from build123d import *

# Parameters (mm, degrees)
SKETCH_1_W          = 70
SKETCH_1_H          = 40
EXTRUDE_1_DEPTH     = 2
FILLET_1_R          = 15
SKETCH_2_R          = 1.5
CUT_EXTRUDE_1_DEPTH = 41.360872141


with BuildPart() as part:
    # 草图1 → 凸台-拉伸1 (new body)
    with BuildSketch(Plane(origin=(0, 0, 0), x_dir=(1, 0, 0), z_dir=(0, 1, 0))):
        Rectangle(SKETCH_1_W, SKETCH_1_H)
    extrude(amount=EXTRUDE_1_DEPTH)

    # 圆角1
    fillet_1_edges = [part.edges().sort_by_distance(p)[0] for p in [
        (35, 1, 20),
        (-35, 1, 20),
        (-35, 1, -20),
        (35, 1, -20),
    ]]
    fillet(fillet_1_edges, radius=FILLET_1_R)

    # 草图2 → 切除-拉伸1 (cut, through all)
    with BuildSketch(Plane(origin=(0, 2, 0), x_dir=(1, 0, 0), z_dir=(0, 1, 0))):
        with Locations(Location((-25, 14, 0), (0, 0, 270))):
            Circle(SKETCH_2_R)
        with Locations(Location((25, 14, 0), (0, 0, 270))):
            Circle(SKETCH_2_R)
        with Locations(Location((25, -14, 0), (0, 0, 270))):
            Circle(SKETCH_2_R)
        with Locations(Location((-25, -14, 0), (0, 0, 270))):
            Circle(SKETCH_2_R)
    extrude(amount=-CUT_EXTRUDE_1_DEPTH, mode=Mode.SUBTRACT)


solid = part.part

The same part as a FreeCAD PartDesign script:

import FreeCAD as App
import Part
import Sketcher


def edges_at(feature, points):
    """Names of the edges that pass closest to the given points."""
    edges = feature.Shape.Edges
    near = lambda p: min(range(len(edges)), key=lambda i: edges[i].distToShape(Part.Vertex(*p))[0])
    return sorted({f"Edge{near(p) + 1}" for p in points})

doc = App.newDocument("Part")
body = doc.addObject("PartDesign::Body", "Body")

sketch1 = body.newObject("Sketcher::SketchObject", "Sketch")
sketch1.AttachmentSupport = (doc.getObject("XZ_Plane"), [""])
sketch1.MapMode = "FlatFace"
sketch1.addGeometry(Part.LineSegment(App.Vector(-35, -20, 0), App.Vector(-35, 20, 0)), False)
sketch1.addGeometry(Part.LineSegment(App.Vector(-35, 20, 0), App.Vector(35, 20, 0)), False)
sketch1.addGeometry(Part.LineSegment(App.Vector(35, 20, 0), App.Vector(35, -20, 0)), False)
sketch1.addGeometry(Part.LineSegment(App.Vector(35, -20, 0), App.Vector(-35, -20, 0)), False)
sketch1.addConstraint(Sketcher.Constraint("Coincident", 0, 2, 1, 1))
sketch1.addConstraint(Sketcher.Constraint("Coincident", 1, 2, 2, 1))
sketch1.addConstraint(Sketcher.Constraint("Coincident", 2, 2, 3, 1))
sketch1.addConstraint(Sketcher.Constraint("Coincident", 3, 2, 0, 1))
sketch1.addConstraint(Sketcher.Constraint("Vertical", 0))
sketch1.addConstraint(Sketcher.Constraint("Horizontal", 1))
sketch1.addConstraint(Sketcher.Constraint("Vertical", 2))
sketch1.addConstraint(Sketcher.Constraint("Horizontal", 3))
sketch1.addConstraint(Sketcher.Constraint("Symmetric", 0, 2, 2, 2, -1, 1))
sketch1.addConstraint(Sketcher.Constraint("DistanceX", 1, 1, 1, 2, 70.0))
sketch1.addConstraint(Sketcher.Constraint("DistanceY", 0, 1, 0, 2, 40.0))
pad1 = body.newObject("PartDesign::Pad", "Pad")
pad1.Profile = sketch1
pad1.Length = 2
pad1.Reversed = True
doc.recompute()

fillet = body.newObject("PartDesign::Fillet", "Fillet")
fillet.Base = (pad1, edges_at(pad1, [
    (35, 1, 20),
    (-35, 1, 20),
    (-35, 1, -20),
    (35, 1, -20),
]))
fillet.Radius = 15

sketch2 = body.newObject("Sketcher::SketchObject", "Sketch001")
sketch2.AttachmentSupport = (doc.getObject("XZ_Plane"), [""])
sketch2.MapMode = "FlatFace"
sketch2.AttachmentOffset = App.Placement(App.Vector(0, 0, -2), App.Rotation())
sketch2.addGeometry(Part.Circle(App.Vector(-25, -14, 0), App.Vector(0, 0, 1), 1.5), False)
sketch2.addGeometry(Part.Circle(App.Vector(25, -14, 0), App.Vector(0, 0, 1), 1.5), False)
sketch2.addGeometry(Part.Circle(App.Vector(25, 14, 0), App.Vector(0, 0, 1), 1.5), False)
sketch2.addGeometry(Part.Circle(App.Vector(-25, 14, 0), App.Vector(0, 0, 1), 1.5), False)
sketch2.addConstraint(Sketcher.Constraint("Equal", 0, 1))
sketch2.addConstraint(Sketcher.Constraint("Equal", 1, 2))
sketch2.addConstraint(Sketcher.Constraint("Equal", 2, 3))
sketch2.addConstraint(Sketcher.Constraint("Symmetric", 0, 3, 2, 3, -1, 1))
sketch2.addConstraint(Sketcher.Constraint("Symmetric", 1, 3, 3, 3, -1, 1))
sketch2.addConstraint(Sketcher.Constraint("Symmetric", 0, 3, 1, 3, -2))
sketch2.addConstraint(Sketcher.Constraint("Diameter", 0, 3.0))
sketch2.addConstraint(Sketcher.Constraint("DistanceX", 0, 3, -1, 1, 25.0))
sketch2.addConstraint(Sketcher.Constraint("DistanceY", 0, 3, -1, 1, 14.0))
pocket1 = body.newObject("PartDesign::Pocket", "Pocket")
pocket1.Profile = sketch2
pocket1.Type = "ThroughAll"
pocket1.Reversed = True

doc.recompute()
